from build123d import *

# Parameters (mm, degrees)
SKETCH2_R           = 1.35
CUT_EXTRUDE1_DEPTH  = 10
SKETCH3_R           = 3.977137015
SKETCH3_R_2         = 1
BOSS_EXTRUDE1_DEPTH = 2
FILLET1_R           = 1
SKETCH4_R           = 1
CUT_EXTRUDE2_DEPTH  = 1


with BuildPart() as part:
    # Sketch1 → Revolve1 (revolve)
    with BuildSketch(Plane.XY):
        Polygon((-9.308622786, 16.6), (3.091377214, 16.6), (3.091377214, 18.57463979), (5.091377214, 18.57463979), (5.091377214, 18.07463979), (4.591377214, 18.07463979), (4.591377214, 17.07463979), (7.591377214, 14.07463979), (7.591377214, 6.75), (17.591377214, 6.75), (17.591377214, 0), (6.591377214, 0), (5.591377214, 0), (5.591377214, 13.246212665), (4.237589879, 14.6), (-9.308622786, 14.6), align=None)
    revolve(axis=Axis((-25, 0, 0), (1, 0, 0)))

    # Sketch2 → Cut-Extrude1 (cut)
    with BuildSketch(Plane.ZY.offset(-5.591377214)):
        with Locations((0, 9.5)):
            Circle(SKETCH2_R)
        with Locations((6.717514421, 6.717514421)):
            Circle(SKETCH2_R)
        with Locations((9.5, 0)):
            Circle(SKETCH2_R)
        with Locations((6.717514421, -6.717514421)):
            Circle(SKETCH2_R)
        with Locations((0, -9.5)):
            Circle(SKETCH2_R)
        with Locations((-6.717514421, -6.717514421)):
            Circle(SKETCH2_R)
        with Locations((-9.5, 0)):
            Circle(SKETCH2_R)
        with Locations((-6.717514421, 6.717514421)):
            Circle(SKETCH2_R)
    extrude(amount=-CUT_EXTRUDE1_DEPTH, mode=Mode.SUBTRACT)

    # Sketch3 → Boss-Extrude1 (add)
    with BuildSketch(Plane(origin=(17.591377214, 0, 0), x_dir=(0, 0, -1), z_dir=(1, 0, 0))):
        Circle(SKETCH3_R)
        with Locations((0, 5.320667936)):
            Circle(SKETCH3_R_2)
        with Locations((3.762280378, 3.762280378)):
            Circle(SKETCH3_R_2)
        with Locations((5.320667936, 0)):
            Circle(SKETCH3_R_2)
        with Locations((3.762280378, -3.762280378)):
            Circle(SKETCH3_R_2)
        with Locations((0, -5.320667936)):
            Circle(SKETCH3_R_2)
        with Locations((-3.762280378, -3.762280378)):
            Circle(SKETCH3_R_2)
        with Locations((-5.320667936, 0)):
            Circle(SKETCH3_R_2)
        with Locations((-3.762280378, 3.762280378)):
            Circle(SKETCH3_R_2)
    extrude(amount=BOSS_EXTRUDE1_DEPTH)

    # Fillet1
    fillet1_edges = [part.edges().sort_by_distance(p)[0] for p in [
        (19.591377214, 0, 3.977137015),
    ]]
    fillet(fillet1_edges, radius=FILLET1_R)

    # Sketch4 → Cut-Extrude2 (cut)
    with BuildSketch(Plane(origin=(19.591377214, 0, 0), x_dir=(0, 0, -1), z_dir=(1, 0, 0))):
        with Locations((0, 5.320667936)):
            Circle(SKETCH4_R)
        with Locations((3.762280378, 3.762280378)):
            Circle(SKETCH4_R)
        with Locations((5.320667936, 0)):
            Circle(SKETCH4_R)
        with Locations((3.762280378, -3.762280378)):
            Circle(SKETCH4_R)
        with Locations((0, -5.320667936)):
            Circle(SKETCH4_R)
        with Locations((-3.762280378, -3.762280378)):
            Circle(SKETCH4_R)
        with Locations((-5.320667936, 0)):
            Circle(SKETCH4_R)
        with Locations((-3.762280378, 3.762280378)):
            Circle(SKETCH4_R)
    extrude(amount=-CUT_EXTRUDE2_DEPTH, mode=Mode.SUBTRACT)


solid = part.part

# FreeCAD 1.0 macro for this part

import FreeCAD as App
import Part
import Sketcher

V = App.Vector
Q = App.Units.Quantity


def edges_at(feature, points):
    """Names of the edges that pass closest to the given points."""
    edges = feature.Shape.Edges
    near = lambda p: min(range(len(edges)), key=lambda i: edges[i].distToShape(Part.Vertex(*p))[0])
    return sorted({f"Edge{near(p) + 1}" for p in points})

doc = App.newDocument("Part")
body = doc.addObject("PartDesign::Body", "Body")

# Sketch on XY plane
sketch1 = body.newObject("Sketcher::SketchObject", "Sketch")
sketch1.AttachmentSupport = (doc.getObject("XY_Plane"), [""])
sketch1.MapMode = "FlatFace"
sketch1.addGeometry([
    Part.LineSegment(V(3.1, 16.6, 0), V(-9.3, 16.6, 0)),  # 0
    Part.LineSegment(V(-9.3, 16.6, 0), V(-9.3, 14.6, 0)),  # 1
    Part.LineSegment(V(-9.3, 14.6, 0), V(4.2, 14.6, 0)),  # 2
    Part.LineSegment(V(4.2, 14.6, 0), V(5.6, 13.2, 0)),  # 3
    Part.LineSegment(V(5.6, 13.2, 0), V(5.6, 0, 0)),  # 4
    Part.LineSegment(V(5.6, 0, 0), V(17.6, 0, 0)),  # 5
    Part.LineSegment(V(17.6, 0, 0), V(17.6, 6.8, 0)),  # 6
    Part.LineSegment(V(17.6, 6.8, 0), V(7.6, 6.8, 0)),  # 7
    Part.LineSegment(V(7.6, 6.8, 0), V(7.6, 14.1, 0)),  # 8
    Part.LineSegment(V(7.6, 14.1, 0), V(4.6, 17.1, 0)),  # 9
    Part.LineSegment(V(4.6, 17.1, 0), V(4.6, 18.1, 0)),  # 10
    Part.LineSegment(V(4.6, 18.1, 0), V(5.1, 18.1, 0)),  # 11
    Part.LineSegment(V(5.1, 18.1, 0), V(5.1, 18.6, 0)),  # 12
    Part.LineSegment(V(5.1, 18.6, 0), V(3.1, 18.6, 0)),  # 13
    Part.LineSegment(V(3.1, 18.6, 0), V(3.1, 16.6, 0)),  # 14
], False)
sketch1.addConstraint([
    Sketcher.Constraint("Coincident", 0, 2, 1, 1),
    Sketcher.Constraint("Coincident", 1, 2, 2, 1),
    Sketcher.Constraint("Coincident", 2, 2, 3, 1),
    Sketcher.Constraint("Coincident", 3, 2, 4, 1),
    Sketcher.Constraint("Coincident", 4, 2, 5, 1),
    Sketcher.Constraint("Coincident", 5, 2, 6, 1),
    Sketcher.Constraint("Coincident", 6, 2, 7, 1),
    Sketcher.Constraint("Coincident", 7, 2, 8, 1),
    Sketcher.Constraint("Coincident", 8, 2, 9, 1),
    Sketcher.Constraint("Coincident", 9, 2, 10, 1),
    Sketcher.Constraint("Coincident", 10, 2, 11, 1),
    Sketcher.Constraint("Coincident", 11, 2, 12, 1),
    Sketcher.Constraint("Coincident", 12, 2, 13, 1),
    Sketcher.Constraint("Coincident", 13, 2, 14, 1),
    Sketcher.Constraint("Coincident", 14, 2, 0, 1),
    Sketcher.Constraint("Horizontal", 0),
    Sketcher.Constraint("Vertical", 1),
    Sketcher.Constraint("Horizontal", 2),
    Sketcher.Constraint("Vertical", 4),
    Sketcher.Constraint("Horizontal", 5),
    Sketcher.Constraint("Vertical", 6),
    Sketcher.Constraint("Horizontal", 7),
    Sketcher.Constraint("Vertical", 8),
    Sketcher.Constraint("Vertical", 10),
    Sketcher.Constraint("Horizontal", 11),
    Sketcher.Constraint("Vertical", 12),
    Sketcher.Constraint("Horizontal", 13),
    Sketcher.Constraint("Vertical", 14),
    Sketcher.Constraint("PointOnObject", 4, 2, -1),
    Sketcher.Constraint("Parallel", 3, 9),
    Sketcher.Constraint("Equal", 13, 1),
    Sketcher.Constraint("Equal", 11, 12),
    Sketcher.Constraint("DistanceX", 5, 1, 5, 2, 12.0),
    Sketcher.Constraint("DistanceX", 7, 2, 7, 1, 10.0),
    Sketcher.Constraint("DistanceX", 13, 2, 13, 1, 2.0),
    Sketcher.Constraint("DistanceY", 10, 1, 10, 2, 1.0),
    Sketcher.Constraint("Angle", 3, Q("-45 deg")),
    Sketcher.Constraint("DistanceX", 0, 2, 0, 1, 12.4),
    Sketcher.Constraint("DistanceX", 11, 1, 11, 2, 0.5),
    Sketcher.Constraint("DistanceX", 9, 2, 3, 2, 1.0),
    Sketcher.Constraint("DistanceY", 6, 1, 6, 2, 6.75),
    Sketcher.Constraint("DistanceY", -1, 1, 0, 2, 16.6),
    Sketcher.Constraint("DistanceY", 8, 1, 8, 2, 7.32464),
    Sketcher.Constraint("DistanceX", 2, 1, 2, 2, 13.546213),
    Sketcher.Constraint("DistanceX", -1, 1, 2, 2, 4.23759),
])
revolution = body.newObject("PartDesign::Revolution", "Revolution")
revolution.Profile = sketch1
revolution.ReferenceAxis = (sketch1, ["H_Axis"])
revolution.Angle = 360

# Sketch on YZ plane
sketch2 = body.newObject("Sketcher::SketchObject", "Sketch001")
sketch2.AttachmentSupport = (doc.getObject("YZ_Plane"), [""])
sketch2.MapMode = "FlatFace"
sketch2.AttachmentOffset = App.Placement(V(0, 0, 5.591377), App.Rotation())
sketch2.addGeometry([
    Part.Circle(V(9.5, 0, 0), V(0, 0, 1), 1.4),  # 0
    Part.Circle(V(6.7, 6.7, 0), V(0, 0, 1), 1.4),  # 1
    Part.Circle(V(0, 9.5, 0), V(0, 0, 1), 1.4),  # 2
    Part.Circle(V(-6.7, 6.7, 0), V(0, 0, 1), 1.4),  # 3
    Part.Circle(V(-9.5, 0, 0), V(0, 0, 1), 1.4),  # 4
    Part.Circle(V(-6.7, -6.7, 0), V(0, 0, 1), 1.4),  # 5
    Part.Circle(V(0, -9.5, 0), V(0, 0, 1), 1.4),  # 6
    Part.Circle(V(6.7, -6.7, 0), V(0, 0, 1), 1.4),  # 7
], False)
sketch2.addConstraint([
    Sketcher.Constraint("Equal", 0, 1),
    Sketcher.Constraint("Equal", 1, 2),
    Sketcher.Constraint("Equal", 2, 3),
    Sketcher.Constraint("Equal", 3, 4),
    Sketcher.Constraint("Equal", 4, 5),
    Sketcher.Constraint("Equal", 5, 6),
    Sketcher.Constraint("Equal", 6, 7),
    Sketcher.Constraint("Symmetric", 0, 3, 4, 3, -1, 1),
    Sketcher.Constraint("Symmetric", 1, 3, 5, 3, -1, 1),
    Sketcher.Constraint("Symmetric", 2, 3, 6, 3, -1, 1),
    Sketcher.Constraint("Symmetric", 3, 3, 7, 3, -1, 1),
    Sketcher.Constraint("Symmetric", 1, 3, 3, 3, -2),
    Sketcher.Constraint("PointOnObject", 0, 3, -1),
    Sketcher.Constraint("PointOnObject", 2, 3, -2),
    Sketcher.Constraint("Diameter", 0, 2.7),
    Sketcher.Constraint("DistanceX", 4, 3, 0, 3, 19.0),
    Sketcher.Constraint("DistanceY", -1, 1, 2, 3, 9.5),
    Sketcher.Constraint("DistanceX", 3, 3, 1, 3, 13.435029),
    Sketcher.Constraint("DistanceY", 5, 3, 3, 3, 13.435029),
])
pocket1 = body.newObject("PartDesign::Pocket", "Pocket")
pocket1.Profile = sketch2
pocket1.Length = 10
pocket1.Reversed = True

# Sketch on YZ plane
sketch3 = body.newObject("Sketcher::SketchObject", "Sketch002")
sketch3.AttachmentSupport = (doc.getObject("YZ_Plane"), [""])
sketch3.MapMode = "FlatFace"
sketch3.AttachmentOffset = App.Placement(V(0, 0, 17.591377), App.Rotation())
sketch3.addGeometry([
    Part.Circle(V(0, 0, 0), V(0, 0, 1), 4),  # 0
    Part.Circle(V(5.3, 0, 0), V(0, 0, 1), 1),  # 1
    Part.Circle(V(3.8, -3.8, 0), V(0, 0, 1), 1),  # 2
    Part.Circle(V(0, -5.3, 0), V(0, 0, 1), 1),  # 3
    Part.Circle(V(-3.8, -3.8, 0), V(0, 0, 1), 1),  # 4
    Part.Circle(V(-5.3, 0, 0), V(0, 0, 1), 1),  # 5
    Part.Circle(V(-3.8, 3.8, 0), V(0, 0, 1), 1),  # 6
    Part.Circle(V(0, 5.3, 0), V(0, 0, 1), 1),  # 7
    Part.Circle(V(3.8, 3.8, 0), V(0, 0, 1), 1),  # 8
], False)
sketch3.addConstraint([
    Sketcher.Constraint("Coincident", 0, 3, -1, 1),
    Sketcher.Constraint("Equal", 1, 2),
    Sketcher.Constraint("Equal", 2, 3),
    Sketcher.Constraint("Equal", 3, 4),
    Sketcher.Constraint("Equal", 4, 5),
    Sketcher.Constraint("Equal", 5, 6),
    Sketcher.Constraint("Equal", 6, 7),
    Sketcher.Constraint("Equal", 7, 8),
    Sketcher.Constraint("Symmetric", 1, 3, 5, 3, -1, 1),
    Sketcher.Constraint("Symmetric", 2, 3, 6, 3, -1, 1),
    Sketcher.Constraint("Symmetric", 3, 3, 7, 3, -1, 1),
    Sketcher.Constraint("Symmetric", 4, 3, 8, 3, -1, 1),
    Sketcher.Constraint("Symmetric", 2, 3, 4, 3, -2),
    Sketcher.Constraint("PointOnObject", 1, 3, -1),
    Sketcher.Constraint("PointOnObject", 3, 3, -2),
    Sketcher.Constraint("Diameter", 1, 2.0),
    Sketcher.Constraint("Diameter", 0, 7.954274),
    Sketcher.Constraint("DistanceX", -1, 1, 2, 3, 3.76228),
    Sketcher.Constraint("DistanceY", 2, 3, -1, 1, 3.76228),
    Sketcher.Constraint("DistanceX", 4, 3, 1, 3, 9.082948),
    Sketcher.Constraint("DistanceY", 3, 3, 6, 3, 9.082948),
])
pad1 = body.newObject("PartDesign::Pad", "Pad")
pad1.Profile = sketch3
pad1.Length = 2
doc.recompute()

fillet = body.newObject("PartDesign::Fillet", "Fillet")
fillet.Base = (pad1, edges_at(pad1, [(19.591, 0, 3.977)]))
fillet.Radius = 1

# Sketch on YZ plane
sketch4 = body.newObject("Sketcher::SketchObject", "Sketch003")
sketch4.AttachmentSupport = (doc.getObject("YZ_Plane"), [""])
sketch4.MapMode = "FlatFace"
sketch4.AttachmentOffset = App.Placement(V(0, 0, 19.591377), App.Rotation())
sketch4.addGeometry([
    Part.Circle(V(5.3, 0, 0), V(0, 0, 1), 1),  # 0
    Part.Circle(V(3.8, -3.8, 0), V(0, 0, 1), 1),  # 1
    Part.Circle(V(0, -5.3, 0), V(0, 0, 1), 1),  # 2
    Part.Circle(V(-3.8, -3.8, 0), V(0, 0, 1), 1),  # 3
    Part.Circle(V(-5.3, 0, 0), V(0, 0, 1), 1),  # 4
    Part.Circle(V(-3.8, 3.8, 0), V(0, 0, 1), 1),  # 5
    Part.Circle(V(0, 5.3, 0), V(0, 0, 1), 1),  # 6
    Part.Circle(V(3.8, 3.8, 0), V(0, 0, 1), 1),  # 7
], False)
sketch4.addConstraint([
    Sketcher.Constraint("Equal", 0, 1),
    Sketcher.Constraint("Equal", 1, 2),
    Sketcher.Constraint("Equal", 2, 3),
    Sketcher.Constraint("Equal", 3, 4),
    Sketcher.Constraint("Equal", 4, 5),
    Sketcher.Constraint("Equal", 5, 6),
    Sketcher.Constraint("Equal", 6, 7),
    Sketcher.Constraint("Symmetric", 0, 3, 4, 3, -1, 1),
    Sketcher.Constraint("Symmetric", 1, 3, 5, 3, -1, 1),
    Sketcher.Constraint("Symmetric", 2, 3, 6, 3, -1, 1),
    Sketcher.Constraint("Symmetric", 3, 3, 7, 3, -1, 1),
    Sketcher.Constraint("Symmetric", 1, 3, 3, 3, -2),
    Sketcher.Constraint("PointOnObject", 0, 3, -1),
    Sketcher.Constraint("PointOnObject", 2, 3, -2),
    Sketcher.Constraint("Diameter", 0, 2.0),
    Sketcher.Constraint("DistanceX", -1, 1, 1, 3, 3.76228),
    Sketcher.Constraint("DistanceY", 1, 3, -1, 1, 3.76228),
    Sketcher.Constraint("DistanceX", 3, 3, 0, 3, 9.082948),
    Sketcher.Constraint("DistanceY", 2, 3, 5, 3, 9.082948),
])
pocket2 = body.newObject("PartDesign::Pocket", "Pocket001")
pocket2.Profile = sketch4
pocket2.Length = 1

doc.recompute()
